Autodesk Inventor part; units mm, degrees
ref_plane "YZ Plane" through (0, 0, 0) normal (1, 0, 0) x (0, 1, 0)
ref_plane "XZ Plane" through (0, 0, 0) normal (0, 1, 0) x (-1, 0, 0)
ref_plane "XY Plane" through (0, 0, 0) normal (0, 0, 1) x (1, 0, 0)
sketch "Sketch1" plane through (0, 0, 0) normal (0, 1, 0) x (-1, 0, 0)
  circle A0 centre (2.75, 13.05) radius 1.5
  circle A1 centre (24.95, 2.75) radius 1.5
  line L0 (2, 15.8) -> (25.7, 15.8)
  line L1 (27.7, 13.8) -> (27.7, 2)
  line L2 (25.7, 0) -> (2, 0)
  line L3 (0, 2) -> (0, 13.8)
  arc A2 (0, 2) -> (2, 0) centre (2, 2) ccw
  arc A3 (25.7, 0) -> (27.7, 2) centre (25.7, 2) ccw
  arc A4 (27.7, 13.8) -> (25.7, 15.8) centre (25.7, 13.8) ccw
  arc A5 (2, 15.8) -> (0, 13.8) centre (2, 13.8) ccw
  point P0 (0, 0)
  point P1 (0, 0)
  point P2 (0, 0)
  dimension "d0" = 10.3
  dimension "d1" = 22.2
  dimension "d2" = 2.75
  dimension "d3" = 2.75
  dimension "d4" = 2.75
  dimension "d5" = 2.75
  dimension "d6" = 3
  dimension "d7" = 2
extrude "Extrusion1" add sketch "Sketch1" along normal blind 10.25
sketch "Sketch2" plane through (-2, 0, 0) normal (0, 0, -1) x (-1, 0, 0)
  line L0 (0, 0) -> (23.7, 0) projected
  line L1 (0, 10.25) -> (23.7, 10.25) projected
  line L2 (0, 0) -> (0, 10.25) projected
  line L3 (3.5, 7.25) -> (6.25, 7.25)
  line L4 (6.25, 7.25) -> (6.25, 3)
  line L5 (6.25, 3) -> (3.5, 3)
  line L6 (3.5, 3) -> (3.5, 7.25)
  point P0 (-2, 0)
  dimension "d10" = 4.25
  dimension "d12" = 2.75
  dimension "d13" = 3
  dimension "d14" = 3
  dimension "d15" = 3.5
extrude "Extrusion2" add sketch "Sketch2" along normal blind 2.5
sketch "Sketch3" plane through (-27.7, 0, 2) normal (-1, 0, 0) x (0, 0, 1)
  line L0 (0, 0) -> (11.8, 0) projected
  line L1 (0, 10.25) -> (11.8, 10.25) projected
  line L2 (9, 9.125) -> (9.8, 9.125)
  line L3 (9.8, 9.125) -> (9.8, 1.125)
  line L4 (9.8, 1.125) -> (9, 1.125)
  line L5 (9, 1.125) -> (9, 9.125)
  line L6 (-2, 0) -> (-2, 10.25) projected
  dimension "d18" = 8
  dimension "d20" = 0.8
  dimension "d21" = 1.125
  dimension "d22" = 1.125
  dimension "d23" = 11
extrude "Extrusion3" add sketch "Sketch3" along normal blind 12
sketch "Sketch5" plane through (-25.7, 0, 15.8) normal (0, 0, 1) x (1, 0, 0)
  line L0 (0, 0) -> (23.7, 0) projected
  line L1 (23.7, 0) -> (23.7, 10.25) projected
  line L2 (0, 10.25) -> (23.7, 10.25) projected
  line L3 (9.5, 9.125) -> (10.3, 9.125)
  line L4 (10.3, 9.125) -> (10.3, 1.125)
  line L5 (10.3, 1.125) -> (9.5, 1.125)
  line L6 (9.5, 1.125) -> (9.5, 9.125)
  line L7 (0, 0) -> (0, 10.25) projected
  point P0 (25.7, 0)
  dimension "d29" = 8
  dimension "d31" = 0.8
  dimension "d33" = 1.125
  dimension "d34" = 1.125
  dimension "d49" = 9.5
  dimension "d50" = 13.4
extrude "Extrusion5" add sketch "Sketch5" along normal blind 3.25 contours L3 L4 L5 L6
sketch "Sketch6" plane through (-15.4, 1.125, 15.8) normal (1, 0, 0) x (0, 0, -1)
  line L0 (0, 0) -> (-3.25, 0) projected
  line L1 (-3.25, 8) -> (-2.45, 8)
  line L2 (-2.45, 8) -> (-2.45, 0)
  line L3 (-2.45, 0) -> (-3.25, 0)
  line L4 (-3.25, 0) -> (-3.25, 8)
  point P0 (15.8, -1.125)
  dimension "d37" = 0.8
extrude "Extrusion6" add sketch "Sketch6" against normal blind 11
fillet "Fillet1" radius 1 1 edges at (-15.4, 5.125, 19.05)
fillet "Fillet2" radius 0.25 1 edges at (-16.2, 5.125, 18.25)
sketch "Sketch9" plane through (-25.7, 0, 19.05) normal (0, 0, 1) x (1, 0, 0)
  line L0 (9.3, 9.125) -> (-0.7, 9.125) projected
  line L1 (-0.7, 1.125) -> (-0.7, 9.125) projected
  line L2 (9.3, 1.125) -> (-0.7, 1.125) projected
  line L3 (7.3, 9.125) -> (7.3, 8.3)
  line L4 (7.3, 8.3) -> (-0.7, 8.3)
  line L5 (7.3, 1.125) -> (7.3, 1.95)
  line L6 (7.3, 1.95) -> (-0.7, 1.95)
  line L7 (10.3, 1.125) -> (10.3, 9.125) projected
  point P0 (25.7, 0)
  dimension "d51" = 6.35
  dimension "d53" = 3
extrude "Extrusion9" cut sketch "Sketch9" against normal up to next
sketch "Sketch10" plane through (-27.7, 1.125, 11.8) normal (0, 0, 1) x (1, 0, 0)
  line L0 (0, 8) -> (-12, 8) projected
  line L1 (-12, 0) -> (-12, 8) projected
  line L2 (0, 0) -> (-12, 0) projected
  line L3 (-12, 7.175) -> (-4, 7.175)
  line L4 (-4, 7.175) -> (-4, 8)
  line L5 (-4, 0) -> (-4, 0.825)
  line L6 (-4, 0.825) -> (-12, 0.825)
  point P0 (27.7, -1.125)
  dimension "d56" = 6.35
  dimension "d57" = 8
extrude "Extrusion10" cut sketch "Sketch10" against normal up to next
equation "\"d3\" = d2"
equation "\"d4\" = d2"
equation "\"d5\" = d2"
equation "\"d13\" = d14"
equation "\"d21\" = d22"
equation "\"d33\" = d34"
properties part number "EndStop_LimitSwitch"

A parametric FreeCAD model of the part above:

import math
import FreeCAD as App
import Part
import Sketcher
from FreeCAD import Vector
Q = App.Units.Quantity


def edges_at(feature, points):
    """Names of the edges that pass closest to the given points."""
    edges = feature.Shape.Edges
    near = lambda p: min(range(len(edges)), key=lambda i: edges[i].distToShape(Part.Vertex(*p))[0])
    return sorted({f"Edge{near(p) + 1}" for p in points})


def add_polygon(sketch, points):
    """Adds a closed chain of lines whose ends are joined by coincident constraints."""
    first, n = sketch.GeometryCount, len(points)
    for a, b in zip(points, points[1:] + points[:1]):
        sketch.addGeometry(Part.LineSegment(App.Vector(*a, 0), App.Vector(*b, 0)), False)
    for i in range(n):
        sketch.addConstraint(Sketcher.Constraint("Coincident", first + i, 2, first + (i + 1) % n, 1))

doc = App.newDocument("Part")
params = doc.addObject("Spreadsheet::Sheet", "Params")
for row, (alias, value) in enumerate([
    ("sketch1_diameter", "3 mm"),
    ("sketch1_radius", "2 mm"),
    ("pad1_length", "10.25 mm"),
    ("sketch2_width", "2.75 mm"),
    ("sketch2_height", "4.25 mm"),
    ("pad2_length", "2.5 mm"),
    ("sketch3_width", "8 mm"),
    ("sketch3_height", "0.8 mm"),
    ("pad3_length", "12 mm"),
    ("sketch4_height", "8 mm"),
    ("sketch4_width", "0.8 mm"),
    ("pad4_length", "3.25 mm"),
    ("sketch5_height", "0.8 mm"),
    ("sketch5_width", "8 mm"),
    ("pad5_length", "11 mm"),
    ("fillet_radius", "1 mm"),
    ("fillet2_radius", "0.25 mm"),
    ("sketch6_width", "8 mm"),
    ("sketch7_width", "8 mm"),
], start=1):
    params.set(f"A{row}", alias)
    params.set(f"B{row}", "=" + value)
    params.setAlias(f"B{row}", alias)

body = doc.addObject("PartDesign::Body", "Body")

sketch1 = body.newObject("Sketcher::SketchObject", "Sketch")
sketch1.AttachmentSupport = (doc.getObject("XZ_Plane"), [""])
sketch1.MapMode = "FlatFace"
sketch1.addGeometry([
    Part.LineSegment(Vector(-25.7, 15.8, 0), Vector(-2, 15.8, 0)),
    Part.ArcOfCircle(Part.Circle(Vector(-2, 13.8, 0), Vector(0, 0, 1), 2), math.radians(0), math.radians(90)),
    Part.LineSegment(Vector(0, 13.8, 0), Vector(0, 2, 0)),
    Part.ArcOfCircle(Part.Circle(Vector(-2, 2, 0), Vector(0, 0, 1), 2), math.radians(-90), math.radians(0)),
    Part.LineSegment(Vector(-2, 0, 0), Vector(-25.7, 0, 0)),
    Part.ArcOfCircle(Part.Circle(Vector(-25.7, 2, 0), Vector(0, 0, 1), 2), math.radians(180), math.radians(270)),
    Part.LineSegment(Vector(-27.7, 2, 0), Vector(-27.7, 13.8, 0)),
    Part.ArcOfCircle(Part.Circle(Vector(-25.7, 13.8, 0), Vector(0, 0, 1), 2), math.radians(90), math.radians(180)),
    Part.Circle(Vector(-24.9, 2.8, 0), Vector(0, 0, 1), 1.5),
    Part.Circle(Vector(-2.8, 13.1, 0), Vector(0, 0, 1), 1.5),
], False)
sketch1.addConstraint([
    Sketcher.Constraint("Tangent", 0, 2, 1, 2),
    Sketcher.Constraint("Tangent", 1, 1, 2, 1),
    Sketcher.Constraint("Tangent", 2, 2, 3, 2),
    Sketcher.Constraint("Tangent", 3, 1, 4, 1),
    Sketcher.Constraint("Tangent", 4, 2, 5, 2),
    Sketcher.Constraint("Tangent", 5, 1, 6, 1),
    Sketcher.Constraint("Tangent", 6, 2, 7, 2),
    Sketcher.Constraint("Tangent", 7, 1, 0, 1),
    Sketcher.Constraint("Horizontal", 0),
    Sketcher.Constraint("Vertical", 2),
    Sketcher.Constraint("Horizontal", 4),
    Sketcher.Constraint("Vertical", 6),
    Sketcher.Constraint("Equal", 1, 3),
    Sketcher.Constraint("Equal", 3, 5),
    Sketcher.Constraint("Equal", 5, 7),
    Sketcher.Constraint("Equal", 8, 9),
    Sketcher.Constraint("PointOnObject", 1, 1, -2),
    Sketcher.Constraint("PointOnObject", 3, 1, -1),
    Sketcher.Constraint("Diameter", 8, Q("3 mm")),
    Sketcher.Constraint("Radius", 1, Q("2 mm")),
    Sketcher.Constraint("DistanceX", 8, 3, 9, 3, Q("22.2 mm")),
    Sketcher.Constraint("DistanceY", 8, 3, 9, 3, Q("10.3 mm")),
    Sketcher.Constraint("DistanceY", -1, 1, 8, 3, Q("2.75 mm")),
    Sketcher.Constraint("DistanceX", 9, 3, -1, 1, Q("2.75 mm")),
    Sketcher.Constraint("DistanceY", 9, 3, 0, 2, Q("2.75 mm")),
    Sketcher.Constraint("DistanceX", 5, 1, 8, 3, Q("2.75 mm")),
])
sketch1.setExpression("Constraints[18]", "Params.sketch1_diameter")
sketch1.setExpression("Constraints[19]", "Params.sketch1_radius")
pad1 = body.newObject("PartDesign::Pad", "Pad")
pad1.Profile = sketch1
pad1.setExpression("Length", "Params.pad1_length")
pad1.Reversed = True

sketch2 = body.newObject("Sketcher::SketchObject", "Sketch001")
sketch2.AttachmentSupport = (doc.getObject("XY_Plane"), [""])
sketch2.MapMode = "FlatFace"
add_polygon(sketch2, [(-8.2, 7.2), (-5.5, 7.2), (-5.5, 3), (-8.2, 3)])
sketch2.addConstraint([
    Sketcher.Constraint("Horizontal", 0),
    Sketcher.Constraint("Vertical", 1),
    Sketcher.Constraint("Horizontal", 2),
    Sketcher.Constraint("Vertical", 3),
    Sketcher.Constraint("DistanceY", -1, 1, 1, 2, Q("3 mm")),
    Sketcher.Constraint("DistanceX", 0, 1, 0, 2, Q("2.75 mm")),
    Sketcher.Constraint("DistanceY", 1, 2, 1, 1, Q("4.25 mm")),
    Sketcher.Constraint("DistanceX", 0, 2, -1, 1, Q("5.5 mm")),
])
sketch2.setExpression("Constraints[9]", "Params.sketch2_width")
sketch2.setExpression("Constraints[10]", "Params.sketch2_height")
pad2 = body.newObject("PartDesign::Pad", "Pad001")
pad2.Profile = sketch2
pad2.setExpression("Length", "Params.pad2_length")
pad2.Reversed = True

sketch3 = body.newObject("Sketcher::SketchObject", "Sketch002")
sketch3.AttachmentSupport = (doc.getObject("YZ_Plane"), [""])
sketch3.MapMode = "FlatFace"
sketch3.AttachmentOffset = App.Placement(Vector(0, 0, -27.7), App.Rotation())
add_polygon(sketch3, [(9.1, 11.8), (9.1, 11), (1.1, 11), (1.1, 11.8)])
sketch3.addConstraint([
    Sketcher.Constraint("Vertical", 0),
    Sketcher.Constraint("Horizontal", 1),
    Sketcher.Constraint("Vertical", 2),
    Sketcher.Constraint("Horizontal", 3),
    Sketcher.Constraint("DistanceX", 1, 2, 1, 1, Q("8 mm")),
    Sketcher.Constraint("DistanceY", 0, 2, 0, 1, Q("0.8 mm")),
    Sketcher.Constraint("DistanceY", -1, 1, 0, 2, Q("11 mm")),
    Sketcher.Constraint("DistanceX", -1, 1, 1, 2, Q("1.125 mm")),
])
sketch3.setExpression("Constraints[8]", "Params.sketch3_width")
sketch3.setExpression("Constraints[9]", "Params.sketch3_height")
pad3 = body.newObject("PartDesign::Pad", "Pad002")
pad3.Profile = sketch3
pad3.setExpression("Length", "Params.pad3_length")
pad3.Reversed = True

sketch4 = body.newObject("Sketcher::SketchObject", "Sketch003")
sketch4.AttachmentSupport = (doc.getObject("XY_Plane"), [""])
sketch4.MapMode = "FlatFace"
sketch4.AttachmentOffset = App.Placement(Vector(0, 0, 15.8), App.Rotation())
add_polygon(sketch4, [(-15.4, 9.1), (-16.2, 9.1), (-16.2, 1.1), (-15.4, 1.1)])
sketch4.addConstraint([
    Sketcher.Constraint("Horizontal", 0),
    Sketcher.Constraint("Vertical", 1),
    Sketcher.Constraint("Horizontal", 2),
    Sketcher.Constraint("Vertical", 3),
    Sketcher.Constraint("DistanceY", 1, 2, 1, 1, Q("8 mm")),
    Sketcher.Constraint("DistanceX", 0, 2, 0, 1, Q("0.8 mm")),
    Sketcher.Constraint("DistanceY", -1, 1, 1, 2, Q("1.125 mm")),
    Sketcher.Constraint("DistanceX", 0, 2, -1, 1, Q("16.2 mm")),
])
sketch4.setExpression("Constraints[8]", "Params.sketch4_height")
sketch4.setExpression("Constraints[9]", "Params.sketch4_width")
pad4 = body.newObject("PartDesign::Pad", "Pad003")
pad4.Profile = sketch4
pad4.setExpression("Length", "Params.pad4_length")

sketch5 = body.newObject("Sketcher::SketchObject", "Sketch004")
sketch5.AttachmentSupport = (doc.getObject("YZ_Plane"), [""])
sketch5.MapMode = "FlatFace"
sketch5.AttachmentOffset = App.Placement(Vector(0, 0, -15.4), App.Rotation())
add_polygon(sketch5, [(1.1, 19.1), (1.1, 18.2), (9.1, 18.2), (9.1, 19.1)])
sketch5.addConstraint([
    Sketcher.Constraint("Vertical", 0),
    Sketcher.Constraint("Horizontal", 1),
    Sketcher.Constraint("Vertical", 2),
    Sketcher.Constraint("Horizontal", 3),
    Sketcher.Constraint("DistanceY", 0, 2, 0, 1, Q("0.8 mm")),
    Sketcher.Constraint("DistanceX", 1, 1, 1, 2, Q("8 mm")),
    Sketcher.Constraint("DistanceY", -1, 1, 0, 2, Q("18.25 mm")),
    Sketcher.Constraint("DistanceX", -1, 1, 0, 2, Q("1.125 mm")),
])
sketch5.setExpression("Constraints[8]", "Params.sketch5_height")
sketch5.setExpression("Constraints[9]", "Params.sketch5_width")
pad5 = body.newObject("PartDesign::Pad", "Pad004")
pad5.Profile = sketch5
pad5.setExpression("Length", "Params.pad5_length")
pad5.Reversed = True
doc.recompute()

fillet = body.newObject("PartDesign::Fillet", "Fillet")
fillet.Base = (pad5, edges_at(pad5, [(-15.4, 5.125, 19.05)]))
fillet.setExpression("Radius", "Params.fillet_radius")
doc.recompute()

fillet2 = body.newObject("PartDesign::Fillet", "Fillet001")
fillet2.Base = (fillet, edges_at(fillet, [(-16.2, 5.125, 18.25)]))
fillet2.setExpression("Radius", "Params.fillet2_radius")

sketch6 = body.newObject("Sketcher::SketchObject", "Sketch005")
sketch6.AttachmentSupport = (doc.getObject("XY_Plane"), [""])
sketch6.MapMode = "FlatFace"
sketch6.AttachmentOffset = App.Placement(Vector(0, 0, 19.05), App.Rotation())
add_polygon(sketch6, [(-18.4, 8.3), (-18.4, 9.1), (-26.4, 9.1), (-26.4, 8.3)])
add_polygon(sketch6, [(-18.4, 1.9), (-26.4, 1.9), (-26.4, 1.1), (-18.4, 1.1)])
sketch6.addConstraint([
    Sketcher.Constraint("Vertical", 0),
    Sketcher.Constraint("Horizontal", 1),
    Sketcher.Constraint("Vertical", 2),
    Sketcher.Constraint("Horizontal", 3),
    Sketcher.Constraint("Horizontal", 4),
    Sketcher.Constraint("Vertical", 5),
    Sketcher.Constraint("Horizontal", 6),
    Sketcher.Constraint("Vertical", 7),
    Sketcher.Constraint("Vertical", 2, 2, 4, 2),
    Sketcher.Constraint("Vertical", 3, 2, 6, 2),
    Sketcher.Constraint("Equal", 2, 5),
    Sketcher.Constraint("DistanceX", 1, 2, 1, 1, Q("8 mm")),
    Sketcher.Constraint("DistanceY", 4, 2, 2, 2, Q("6.35 mm")),
    Sketcher.Constraint("DistanceY", 5, 2, 1, 2, Q("8 mm")),
    Sketcher.Constraint("DistanceX", 0, 2, -1, 1, Q("18.4 mm")),
    Sketcher.Constraint("DistanceY", -1, 1, 2, 2, Q("8.3 mm")),
])
sketch6.setExpression("Constraints[19]", "Params.sketch6_width")
pocket1 = body.newObject("PartDesign::Pocket", "Pocket")
pocket1.Profile = sketch6
pocket1.Type = "UpToFirst"

sketch7 = body.newObject("Sketcher::SketchObject", "Sketch006")
sketch7.AttachmentSupport = (doc.getObject("XY_Plane"), [""])
sketch7.MapMode = "FlatFace"
sketch7.AttachmentOffset = App.Placement(Vector(0, 0, 11.8), App.Rotation())
add_polygon(sketch7, [(-31.7, 8.3), (-31.7, 9.1), (-39.7, 9.1), (-39.7, 8.3)])
add_polygon(sketch7, [(-31.7, 1.9), (-39.7, 1.9), (-39.7, 1.1), (-31.7, 1.1)])
sketch7.addConstraint([
    Sketcher.Constraint("Vertical", 0),
    Sketcher.Constraint("Horizontal", 1),
    Sketcher.Constraint("Vertical", 2),
    Sketcher.Constraint("Horizontal", 3),
    Sketcher.Constraint("Horizontal", 4),
    Sketcher.Constraint("Vertical", 5),
    Sketcher.Constraint("Horizontal", 6),
    Sketcher.Constraint("Vertical", 7),
    Sketcher.Constraint("Vertical", 2, 2, 4, 2),
    Sketcher.Constraint("Vertical", 3, 2, 6, 2),
    Sketcher.Constraint("Equal", 2, 5),
    Sketcher.Constraint("DistanceX", 1, 2, 1, 1, Q("8 mm")),
    Sketcher.Constraint("DistanceY", 5, 2, 1, 2, Q("8 mm")),
    Sketcher.Constraint("DistanceY", 4, 2, 2, 2, Q("6.35 mm")),
    Sketcher.Constraint("DistanceX", 0, 2, -1, 1, Q("31.7 mm")),
    Sketcher.Constraint("DistanceY", -1, 1, 2, 2, Q("8.3 mm")),
])
sketch7.setExpression("Constraints[19]", "Params.sketch7_width")
pocket2 = body.newObject("PartDesign::Pocket", "Pocket001")
pocket2.Profile = sketch7
pocket2.Type = "UpToFirst"

doc.recompute()
